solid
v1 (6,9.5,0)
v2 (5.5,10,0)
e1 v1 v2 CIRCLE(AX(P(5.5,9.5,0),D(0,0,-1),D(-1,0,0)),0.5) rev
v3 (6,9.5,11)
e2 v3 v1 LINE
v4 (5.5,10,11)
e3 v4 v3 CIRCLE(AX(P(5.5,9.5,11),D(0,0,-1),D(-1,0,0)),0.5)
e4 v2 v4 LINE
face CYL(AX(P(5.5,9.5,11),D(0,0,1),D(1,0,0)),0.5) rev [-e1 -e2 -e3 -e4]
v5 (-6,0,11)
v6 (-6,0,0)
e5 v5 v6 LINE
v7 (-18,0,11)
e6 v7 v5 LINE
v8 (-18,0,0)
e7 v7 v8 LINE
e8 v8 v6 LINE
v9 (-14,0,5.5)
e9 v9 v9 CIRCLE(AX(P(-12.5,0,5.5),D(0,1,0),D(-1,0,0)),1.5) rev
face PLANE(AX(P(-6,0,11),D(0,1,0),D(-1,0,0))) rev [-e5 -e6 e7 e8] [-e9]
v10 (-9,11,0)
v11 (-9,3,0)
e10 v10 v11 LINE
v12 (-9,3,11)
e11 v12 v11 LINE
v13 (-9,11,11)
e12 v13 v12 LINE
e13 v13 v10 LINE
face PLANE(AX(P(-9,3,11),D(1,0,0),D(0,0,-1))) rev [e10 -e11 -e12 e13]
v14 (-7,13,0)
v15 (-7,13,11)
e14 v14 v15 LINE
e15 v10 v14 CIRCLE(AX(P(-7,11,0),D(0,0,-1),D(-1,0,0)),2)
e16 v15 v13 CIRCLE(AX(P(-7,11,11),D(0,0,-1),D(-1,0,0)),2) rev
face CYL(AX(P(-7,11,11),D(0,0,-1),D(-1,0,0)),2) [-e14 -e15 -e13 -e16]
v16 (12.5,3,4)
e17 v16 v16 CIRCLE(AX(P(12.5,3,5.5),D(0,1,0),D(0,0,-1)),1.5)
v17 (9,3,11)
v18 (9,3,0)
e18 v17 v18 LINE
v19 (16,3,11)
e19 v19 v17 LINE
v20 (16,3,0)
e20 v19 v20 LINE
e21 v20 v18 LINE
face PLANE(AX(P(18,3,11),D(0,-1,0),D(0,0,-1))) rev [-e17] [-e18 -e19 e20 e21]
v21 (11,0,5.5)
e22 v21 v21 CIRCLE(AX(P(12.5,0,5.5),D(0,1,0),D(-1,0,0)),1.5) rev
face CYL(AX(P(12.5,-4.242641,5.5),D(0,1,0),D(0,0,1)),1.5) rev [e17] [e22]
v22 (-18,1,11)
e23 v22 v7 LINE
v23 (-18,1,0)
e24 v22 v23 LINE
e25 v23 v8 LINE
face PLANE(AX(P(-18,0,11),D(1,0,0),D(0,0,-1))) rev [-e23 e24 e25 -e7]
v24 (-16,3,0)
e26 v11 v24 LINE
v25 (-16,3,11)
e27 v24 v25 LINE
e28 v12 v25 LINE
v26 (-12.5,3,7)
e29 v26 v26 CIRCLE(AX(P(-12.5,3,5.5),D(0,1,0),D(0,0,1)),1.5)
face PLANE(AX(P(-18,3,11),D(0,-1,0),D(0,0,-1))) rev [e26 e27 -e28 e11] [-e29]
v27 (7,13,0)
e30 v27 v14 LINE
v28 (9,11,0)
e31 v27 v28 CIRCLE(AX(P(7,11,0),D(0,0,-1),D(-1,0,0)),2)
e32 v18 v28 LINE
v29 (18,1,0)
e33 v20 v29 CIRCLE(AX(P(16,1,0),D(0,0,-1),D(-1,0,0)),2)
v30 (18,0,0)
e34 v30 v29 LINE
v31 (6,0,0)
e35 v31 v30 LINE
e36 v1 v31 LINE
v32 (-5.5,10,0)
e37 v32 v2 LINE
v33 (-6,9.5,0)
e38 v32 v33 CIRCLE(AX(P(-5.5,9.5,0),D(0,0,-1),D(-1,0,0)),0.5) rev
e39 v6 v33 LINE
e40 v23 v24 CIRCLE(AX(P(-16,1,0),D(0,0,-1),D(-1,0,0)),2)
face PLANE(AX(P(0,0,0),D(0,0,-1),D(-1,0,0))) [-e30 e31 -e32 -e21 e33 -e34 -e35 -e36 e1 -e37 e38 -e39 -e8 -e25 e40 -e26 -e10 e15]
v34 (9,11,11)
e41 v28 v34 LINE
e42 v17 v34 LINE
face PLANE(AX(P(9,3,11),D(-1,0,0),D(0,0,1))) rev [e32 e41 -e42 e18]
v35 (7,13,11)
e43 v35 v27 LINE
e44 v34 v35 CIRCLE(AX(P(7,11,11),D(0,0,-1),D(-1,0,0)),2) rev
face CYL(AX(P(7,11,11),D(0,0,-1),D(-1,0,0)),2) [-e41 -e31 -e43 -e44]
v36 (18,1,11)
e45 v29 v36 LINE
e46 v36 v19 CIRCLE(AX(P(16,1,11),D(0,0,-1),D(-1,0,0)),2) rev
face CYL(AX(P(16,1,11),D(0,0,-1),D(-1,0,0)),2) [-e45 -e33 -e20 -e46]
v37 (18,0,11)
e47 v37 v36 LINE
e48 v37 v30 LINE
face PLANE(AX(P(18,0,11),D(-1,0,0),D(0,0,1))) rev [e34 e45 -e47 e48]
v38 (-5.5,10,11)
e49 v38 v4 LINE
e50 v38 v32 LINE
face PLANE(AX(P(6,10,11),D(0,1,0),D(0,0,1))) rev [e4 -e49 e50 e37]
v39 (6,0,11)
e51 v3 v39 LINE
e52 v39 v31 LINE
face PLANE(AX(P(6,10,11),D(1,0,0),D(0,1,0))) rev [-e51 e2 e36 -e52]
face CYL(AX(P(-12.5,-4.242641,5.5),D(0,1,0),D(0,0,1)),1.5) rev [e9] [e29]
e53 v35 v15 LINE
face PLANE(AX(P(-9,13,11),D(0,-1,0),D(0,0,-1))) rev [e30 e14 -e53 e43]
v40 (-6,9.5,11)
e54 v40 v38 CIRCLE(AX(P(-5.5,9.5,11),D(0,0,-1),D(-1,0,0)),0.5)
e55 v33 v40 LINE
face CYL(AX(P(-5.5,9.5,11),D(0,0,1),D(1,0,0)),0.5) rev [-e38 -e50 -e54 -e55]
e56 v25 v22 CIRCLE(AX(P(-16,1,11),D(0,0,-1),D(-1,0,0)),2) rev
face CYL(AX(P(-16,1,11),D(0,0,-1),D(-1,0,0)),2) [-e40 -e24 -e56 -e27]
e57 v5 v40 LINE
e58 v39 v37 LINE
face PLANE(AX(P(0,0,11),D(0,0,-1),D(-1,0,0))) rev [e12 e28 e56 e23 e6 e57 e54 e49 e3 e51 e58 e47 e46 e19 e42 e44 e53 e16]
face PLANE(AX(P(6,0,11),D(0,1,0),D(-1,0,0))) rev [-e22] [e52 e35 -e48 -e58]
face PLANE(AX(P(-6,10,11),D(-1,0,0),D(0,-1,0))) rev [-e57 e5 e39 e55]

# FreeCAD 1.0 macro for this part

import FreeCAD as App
import Part
import Sketcher

V = App.Vector


def edges_at(feature, points):
    """Names of the edges that pass closest to the given points."""
    edges = feature.Shape.Edges
    near = lambda p: min(range(len(edges)), key=lambda i: edges[i].distToShape(Part.Vertex(*p))[0])
    return sorted({f"Edge{near(p) + 1}" for p in points})

doc = App.newDocument("Part")
body = doc.addObject("PartDesign::Body", "Body")

# Sketch on XY plane
sketch1 = body.newObject("Sketcher::SketchObject", "Sketch")
sketch1.AttachmentSupport = (doc.getObject("XY_Plane"), [""])
sketch1.MapMode = "FlatFace"
sketch1.addGeometry([
    Part.LineSegment(V(-6, 10, 0), V(6, 10, 0)),  # 0
    Part.LineSegment(V(6, 10, 0), V(6, 0, 0)),  # 1
    Part.LineSegment(V(6, 0, 0), V(18, 0, 0)),  # 2
    Part.LineSegment(V(18, 0, 0), V(18, 3, 0)),  # 3
    Part.LineSegment(V(18, 3, 0), V(9, 3, 0)),  # 4
    Part.LineSegment(V(9, 3, 0), V(9, 13, 0)),  # 5
    Part.LineSegment(V(9, 13, 0), V(-9, 13, 0)),  # 6
    Part.LineSegment(V(-9, 13, 0), V(-9, 3, 0)),  # 7
    Part.LineSegment(V(-9, 3, 0), V(-18, 3, 0)),  # 8
    Part.LineSegment(V(-18, 3, 0), V(-18, 0, 0)),  # 9
    Part.LineSegment(V(-18, 0, 0), V(-6, 0, 0)),  # 10
    Part.LineSegment(V(-6, 0, 0), V(-6, 10, 0)),  # 11
], False)
sketch1.addConstraint([
    Sketcher.Constraint("Coincident", 0, 2, 1, 1),
    Sketcher.Constraint("Coincident", 1, 2, 2, 1),
    Sketcher.Constraint("Coincident", 2, 2, 3, 1),
    Sketcher.Constraint("Coincident", 3, 2, 4, 1),
    Sketcher.Constraint("Coincident", 4, 2, 5, 1),
    Sketcher.Constraint("Coincident", 5, 2, 6, 1),
    Sketcher.Constraint("Coincident", 6, 2, 7, 1),
    Sketcher.Constraint("Coincident", 7, 2, 8, 1),
    Sketcher.Constraint("Coincident", 8, 2, 9, 1),
    Sketcher.Constraint("Coincident", 9, 2, 10, 1),
    Sketcher.Constraint("Coincident", 10, 2, 11, 1),
    Sketcher.Constraint("Coincident", 11, 2, 0, 1),
    Sketcher.Constraint("Horizontal", 0),
    Sketcher.Constraint("Vertical", 1),
    Sketcher.Constraint("Horizontal", 2),
    Sketcher.Constraint("Vertical", 3),
    Sketcher.Constraint("Horizontal", 4),
    Sketcher.Constraint("Vertical", 5),
    Sketcher.Constraint("Horizontal", 6),
    Sketcher.Constraint("Vertical", 7),
    Sketcher.Constraint("Horizontal", 8),
    Sketcher.Constraint("Vertical", 9),
    Sketcher.Constraint("Horizontal", 10),
    Sketcher.Constraint("Vertical", 11),
    Sketcher.Constraint("Symmetric", 2, 2, 9, 2, -1, 1),
    Sketcher.Constraint("Symmetric", 4, 2, 7, 2, -2),
    Sketcher.Constraint("Symmetric", 1, 2, 10, 2, -2),
    Sketcher.Constraint("Equal", 0, 2),
    Sketcher.Constraint("Equal", 1, 5),
    Sketcher.Constraint("DistanceX", 0, 1, 0, 2, 12.0),
    Sketcher.Constraint("DistanceX", 4, 2, 4, 1, 9.0),
    Sketcher.Constraint("DistanceY", 1, 2, 1, 1, 10.0),
    Sketcher.Constraint("DistanceY", 3, 1, 3, 2, 3.0),
])
pad1 = body.newObject("PartDesign::Pad", "Pad")
pad1.Profile = sketch1
pad1.Length = 11
doc.recompute()

fillet = body.newObject("PartDesign::Fillet", "Fillet")
fillet.Base = (pad1, edges_at(pad1, [
    (-18, 3, 5.5),
    (-9, 13, 5.5),
    (9, 13, 5.5),
    (18, 3, 5.5),
]))
fillet.Radius = 2
doc.recompute()

fillet2 = body.newObject("PartDesign::Fillet", "Fillet001")
fillet2.Base = (fillet, edges_at(fillet, [(6, 10, 5.5), (-6, 10, 5.5)]))
fillet2.Radius = 0.5

# Sketch on XZ plane
sketch2 = body.newObject("Sketcher::SketchObject", "Sketch001")
sketch2.AttachmentSupport = (doc.getObject("XZ_Plane"), [""])
sketch2.MapMode = "FlatFace"
sketch2.AttachmentOffset = App.Placement(V(0, 0, -3), App.Rotation())
sketch2.addGeometry([
    Part.Circle(V(-12.5, 5.5, 0), V(0, 0, 1), 1.5),
    Part.Circle(V(12.5, 5.5, 0), V(0, 0, 1), 1.5),
], False)
sketch2.addConstraint([
    Sketcher.Constraint("Equal", 0, 1),
    Sketcher.Constraint("Symmetric", 0, 3, 1, 3, -2),
    Sketcher.Constraint("Diameter", 0, 3.0),
    Sketcher.Constraint("DistanceX", 0, 3, 1, 3, 25.0),
    Sketcher.Constraint("DistanceY", -1, 1, 0, 3, 5.5),
])
pocket1 = body.newObject("PartDesign::Pocket", "Pocket")
pocket1.Profile = sketch2
pocket1.Length = 3
pocket1.Reversed = True

doc.recompute()
